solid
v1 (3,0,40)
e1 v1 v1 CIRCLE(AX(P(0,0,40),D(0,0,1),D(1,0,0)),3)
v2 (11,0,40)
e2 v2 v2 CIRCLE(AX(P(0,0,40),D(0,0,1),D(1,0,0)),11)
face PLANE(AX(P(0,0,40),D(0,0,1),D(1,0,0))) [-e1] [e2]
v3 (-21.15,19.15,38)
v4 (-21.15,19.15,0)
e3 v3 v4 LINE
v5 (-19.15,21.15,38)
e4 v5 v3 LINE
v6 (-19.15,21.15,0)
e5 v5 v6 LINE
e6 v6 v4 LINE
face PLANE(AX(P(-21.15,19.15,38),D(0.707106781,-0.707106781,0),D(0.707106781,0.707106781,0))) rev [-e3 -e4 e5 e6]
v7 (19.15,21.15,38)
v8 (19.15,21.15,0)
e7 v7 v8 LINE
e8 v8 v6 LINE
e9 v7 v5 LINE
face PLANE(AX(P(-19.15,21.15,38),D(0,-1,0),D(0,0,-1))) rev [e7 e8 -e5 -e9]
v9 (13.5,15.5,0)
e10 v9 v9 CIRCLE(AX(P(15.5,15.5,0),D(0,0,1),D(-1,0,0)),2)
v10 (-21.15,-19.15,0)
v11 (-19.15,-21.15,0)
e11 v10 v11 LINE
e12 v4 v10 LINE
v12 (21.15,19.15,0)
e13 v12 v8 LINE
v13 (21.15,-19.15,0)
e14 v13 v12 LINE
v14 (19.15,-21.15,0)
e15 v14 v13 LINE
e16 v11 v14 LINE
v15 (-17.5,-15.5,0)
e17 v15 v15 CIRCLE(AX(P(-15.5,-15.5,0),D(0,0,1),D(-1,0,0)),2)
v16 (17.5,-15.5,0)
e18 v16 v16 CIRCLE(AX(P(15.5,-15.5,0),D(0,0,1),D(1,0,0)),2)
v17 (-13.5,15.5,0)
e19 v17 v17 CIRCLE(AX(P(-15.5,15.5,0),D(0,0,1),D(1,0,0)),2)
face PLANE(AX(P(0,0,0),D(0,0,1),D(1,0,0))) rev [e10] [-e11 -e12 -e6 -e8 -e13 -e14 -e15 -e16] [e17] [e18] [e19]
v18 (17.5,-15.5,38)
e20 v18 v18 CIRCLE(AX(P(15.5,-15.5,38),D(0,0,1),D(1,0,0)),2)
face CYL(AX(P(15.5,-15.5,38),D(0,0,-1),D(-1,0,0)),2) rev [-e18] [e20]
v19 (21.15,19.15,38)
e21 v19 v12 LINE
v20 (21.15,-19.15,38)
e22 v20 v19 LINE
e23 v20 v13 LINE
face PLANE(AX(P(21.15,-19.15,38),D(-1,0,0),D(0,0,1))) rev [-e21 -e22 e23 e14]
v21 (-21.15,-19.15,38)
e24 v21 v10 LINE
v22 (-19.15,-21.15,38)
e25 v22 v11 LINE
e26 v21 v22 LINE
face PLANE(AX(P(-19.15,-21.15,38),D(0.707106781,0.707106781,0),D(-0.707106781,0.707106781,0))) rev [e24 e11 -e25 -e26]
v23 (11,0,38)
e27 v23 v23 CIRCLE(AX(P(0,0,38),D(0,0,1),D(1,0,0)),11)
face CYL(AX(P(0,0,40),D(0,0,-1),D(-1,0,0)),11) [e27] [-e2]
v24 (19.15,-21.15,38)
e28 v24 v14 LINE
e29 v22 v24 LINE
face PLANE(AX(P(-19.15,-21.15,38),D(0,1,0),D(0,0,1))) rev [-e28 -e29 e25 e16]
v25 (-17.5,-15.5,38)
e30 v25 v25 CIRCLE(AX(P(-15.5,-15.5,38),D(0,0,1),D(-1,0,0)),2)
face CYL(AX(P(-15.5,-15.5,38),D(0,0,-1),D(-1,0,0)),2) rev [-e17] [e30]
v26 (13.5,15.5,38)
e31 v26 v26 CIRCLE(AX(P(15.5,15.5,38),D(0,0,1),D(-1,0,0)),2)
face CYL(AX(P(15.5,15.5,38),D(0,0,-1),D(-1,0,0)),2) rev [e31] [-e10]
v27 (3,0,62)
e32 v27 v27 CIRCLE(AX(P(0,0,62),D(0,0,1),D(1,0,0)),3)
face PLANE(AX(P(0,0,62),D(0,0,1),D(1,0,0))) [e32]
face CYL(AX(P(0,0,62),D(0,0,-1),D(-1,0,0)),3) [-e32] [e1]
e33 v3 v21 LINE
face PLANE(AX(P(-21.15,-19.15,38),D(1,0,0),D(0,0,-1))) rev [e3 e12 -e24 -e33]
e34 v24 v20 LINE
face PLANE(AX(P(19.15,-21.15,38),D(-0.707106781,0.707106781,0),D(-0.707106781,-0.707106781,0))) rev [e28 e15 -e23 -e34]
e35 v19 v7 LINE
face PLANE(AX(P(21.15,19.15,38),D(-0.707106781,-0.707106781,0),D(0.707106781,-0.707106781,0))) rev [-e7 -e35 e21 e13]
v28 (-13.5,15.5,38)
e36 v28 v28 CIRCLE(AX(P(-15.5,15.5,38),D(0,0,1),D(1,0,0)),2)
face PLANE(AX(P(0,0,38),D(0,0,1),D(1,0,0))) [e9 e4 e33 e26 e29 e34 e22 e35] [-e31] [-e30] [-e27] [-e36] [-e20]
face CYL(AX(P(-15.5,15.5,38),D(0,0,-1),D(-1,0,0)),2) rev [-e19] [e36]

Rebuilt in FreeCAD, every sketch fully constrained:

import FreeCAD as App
import Part
import Sketcher

V = App.Vector
Q = App.Units.Quantity


def add_polygon(sketch, points):
    """Adds a closed chain of lines whose ends are joined by coincident constraints."""
    first, n = sketch.GeometryCount, len(points)
    for a, b in zip(points, points[1:] + points[:1]):
        sketch.addGeometry(Part.LineSegment(App.Vector(*a, 0), App.Vector(*b, 0)), False)
    for i in range(n):
        sketch.addConstraint(Sketcher.Constraint("Coincident", first + i, 2, first + (i + 1) % n, 1))

doc = App.newDocument("Part")
body = doc.addObject("PartDesign::Body", "Body")

# Sketch on XY plane
sketch1 = body.newObject("Sketcher::SketchObject", "Sketch")
sketch1.AttachmentSupport = (doc.getObject("XY_Plane"), [""])
sketch1.MapMode = "FlatFace"
add_polygon(sketch1, [(-19.1, -21.1), (19.1, -21.1), (21.1, -19.1), (21.1, 19.1), (19.1, 21.1), (-19.1, 21.1), (-21.1, 19.1), (-21.1, -19.1)])  # lines 0-7
sketch1.addGeometry(Part.Circle(V(-15.5, -15.5, 0), V(0, 0, 1), 2), False)  # 8
sketch1.addGeometry(Part.Circle(V(15.5, -15.5, 0), V(0, 0, 1), 2), False)  # 9
sketch1.addGeometry(Part.Circle(V(-15.5, 15.5, 0), V(0, 0, 1), 2), False)  # 10
sketch1.addGeometry(Part.Circle(V(15.5, 15.5, 0), V(0, 0, 1), 2), False)  # 11
sketch1.addConstraint([
    Sketcher.Constraint("Horizontal", 0),
    Sketcher.Constraint("Vertical", 2),
    Sketcher.Constraint("Horizontal", 4),
    Sketcher.Constraint("Vertical", 6),
    Sketcher.Constraint("Equal", 8, 9),
    Sketcher.Constraint("Equal", 9, 10),
    Sketcher.Constraint("Equal", 10, 11),
    Sketcher.Constraint("Symmetric", 9, 3, 10, 3, -1, 1),
    Sketcher.Constraint("Symmetric", 8, 3, 11, 3, -1, 1),
    Sketcher.Constraint("Symmetric", 0, 2, 4, 2, -1, 1),
    Sketcher.Constraint("Symmetric", 1, 2, 5, 2, -1, 1),
    Sketcher.Constraint("Symmetric", 8, 3, 9, 3, -2),
    Sketcher.Constraint("Perpendicular", 1, 3),
    Sketcher.Constraint("Perpendicular", 5, 7),
    Sketcher.Constraint("Horizontal", 2, 2, 5, 2),
    Sketcher.Constraint("Horizontal", 1, 2, 6, 2),
    Sketcher.Constraint("Vertical", 0, 2, 3, 2),
    Sketcher.Constraint("Equal", 4, 2),
    Sketcher.Constraint("Diameter", 8, Q("4 mm")),
    Sketcher.Constraint("DistanceX", 0, 1, 0, 2, Q("38.3 mm")),
    Sketcher.Constraint("DistanceX", 8, 3, 9, 3, Q("31 mm")),
    Sketcher.Constraint("DistanceY", 8, 3, 10, 3, Q("31 mm")),
    Sketcher.Constraint("DistanceX", 0, 2, 1, 2, Q("2 mm")),
])
pad1 = body.newObject("PartDesign::Pad", "Pad")
pad1.Profile = sketch1
pad1.Length = 38

# Sketch on XY plane
sketch2 = body.newObject("Sketcher::SketchObject", "Sketch001")
sketch2.AttachmentSupport = (doc.getObject("XY_Plane"), [""])
sketch2.MapMode = "FlatFace"
sketch2.AttachmentOffset = App.Placement(V(0, 0, 38), App.Rotation())
sketch2.addGeometry(Part.Circle(V(0, 0, 0), V(0, 0, 1), 11), False)
sketch2.addConstraint([
    Sketcher.Constraint("Coincident", 0, 3, -1, 1),
    Sketcher.Constraint("Diameter", 0, Q("22 mm")),
])
pad2 = body.newObject("PartDesign::Pad", "Pad001")
pad2.Profile = sketch2
pad2.Length = 2

# Sketch on XY plane
sketch3 = body.newObject("Sketcher::SketchObject", "Sketch002")
sketch3.AttachmentSupport = (doc.getObject("XY_Plane"), [""])
sketch3.MapMode = "FlatFace"
sketch3.AttachmentOffset = App.Placement(V(0, 0, 40), App.Rotation())
sketch3.addGeometry(Part.Circle(V(0, 0, 0), V(0, 0, 1), 3), False)
sketch3.addConstraint([
    Sketcher.Constraint("Coincident", 0, 3, -1, 1),
    Sketcher.Constraint("Diameter", 0, Q("6 mm")),
])
pad3 = body.newObject("PartDesign::Pad", "Pad002")
pad3.Profile = sketch3
pad3.Length = 22

doc.recompute()
